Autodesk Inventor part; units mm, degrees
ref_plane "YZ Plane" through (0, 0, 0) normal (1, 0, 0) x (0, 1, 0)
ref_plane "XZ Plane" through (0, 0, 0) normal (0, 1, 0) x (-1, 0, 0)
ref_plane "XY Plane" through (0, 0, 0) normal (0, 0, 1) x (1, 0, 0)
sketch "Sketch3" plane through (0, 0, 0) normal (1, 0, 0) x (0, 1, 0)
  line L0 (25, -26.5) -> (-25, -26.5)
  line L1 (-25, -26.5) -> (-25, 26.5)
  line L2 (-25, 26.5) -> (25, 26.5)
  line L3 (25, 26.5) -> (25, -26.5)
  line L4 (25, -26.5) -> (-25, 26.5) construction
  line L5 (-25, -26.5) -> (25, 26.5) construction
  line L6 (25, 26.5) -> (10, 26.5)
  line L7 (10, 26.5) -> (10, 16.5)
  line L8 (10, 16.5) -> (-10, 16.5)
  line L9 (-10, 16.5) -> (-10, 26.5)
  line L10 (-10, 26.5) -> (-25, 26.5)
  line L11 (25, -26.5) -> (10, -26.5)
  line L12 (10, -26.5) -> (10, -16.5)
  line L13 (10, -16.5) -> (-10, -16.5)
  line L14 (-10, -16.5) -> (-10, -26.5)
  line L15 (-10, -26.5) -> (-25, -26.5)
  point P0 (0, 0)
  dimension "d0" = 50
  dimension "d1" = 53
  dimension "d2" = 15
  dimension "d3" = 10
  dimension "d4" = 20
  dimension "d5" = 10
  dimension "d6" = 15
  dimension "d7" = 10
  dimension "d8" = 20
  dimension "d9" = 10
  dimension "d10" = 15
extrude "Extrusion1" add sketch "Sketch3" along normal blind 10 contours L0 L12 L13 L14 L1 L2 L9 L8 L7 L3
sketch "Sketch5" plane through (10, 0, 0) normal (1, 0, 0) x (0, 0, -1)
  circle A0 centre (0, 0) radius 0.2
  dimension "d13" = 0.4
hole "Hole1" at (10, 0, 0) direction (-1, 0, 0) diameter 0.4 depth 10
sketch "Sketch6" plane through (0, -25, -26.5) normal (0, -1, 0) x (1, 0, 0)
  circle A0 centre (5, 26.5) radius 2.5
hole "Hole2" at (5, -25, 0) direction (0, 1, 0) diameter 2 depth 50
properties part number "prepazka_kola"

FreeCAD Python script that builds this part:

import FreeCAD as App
import Part
import Sketcher

V = App.Vector

doc = App.newDocument("Part")
body = doc.addObject("PartDesign::Body", "Body")

# Sketch on YZ plane
sketch1 = body.newObject("Sketcher::SketchObject", "Sketch")
sketch1.AttachmentSupport = (doc.getObject("YZ_Plane"), [""])
sketch1.MapMode = "FlatFace"
sketch1.addGeometry(Part.LineSegment(V(10, -26.5, 0), V(25, -26.5, 0)), False)
sketch1.addGeometry(Part.LineSegment(V(25, -26.5, 0), V(25, 26.5, 0)), False)
sketch1.addGeometry(Part.LineSegment(V(25, 26.5, 0), V(10, 26.5, 0)), False)
sketch1.addGeometry(Part.LineSegment(V(10, 26.5, 0), V(10, 16.5, 0)), False)
sketch1.addGeometry(Part.LineSegment(V(10, 16.5, 0), V(-10, 16.5, 0)), False)
sketch1.addGeometry(Part.LineSegment(V(-10, 16.5, 0), V(-10, 26.5, 0)), False)
sketch1.addGeometry(Part.LineSegment(V(-10, 26.5, 0), V(-25, 26.5, 0)), False)
sketch1.addGeometry(Part.LineSegment(V(-25, 26.5, 0), V(-25, -26.5, 0)), False)
sketch1.addGeometry(Part.LineSegment(V(-25, -26.5, 0), V(-10, -26.5, 0)), False)
sketch1.addGeometry(Part.LineSegment(V(-10, -26.5, 0), V(-10, -16.5, 0)), False)
sketch1.addGeometry(Part.LineSegment(V(-10, -16.5, 0), V(10, -16.5, 0)), False)
sketch1.addGeometry(Part.LineSegment(V(10, -16.5, 0), V(10, -26.5, 0)), False)
sketch1.addConstraint(Sketcher.Constraint("Coincident", 0, 2, 1, 1))
sketch1.addConstraint(Sketcher.Constraint("Coincident", 1, 2, 2, 1))
sketch1.addConstraint(Sketcher.Constraint("Coincident", 2, 2, 3, 1))
sketch1.addConstraint(Sketcher.Constraint("Coincident", 3, 2, 4, 1))
sketch1.addConstraint(Sketcher.Constraint("Coincident", 4, 2, 5, 1))
sketch1.addConstraint(Sketcher.Constraint("Coincident", 5, 2, 6, 1))
sketch1.addConstraint(Sketcher.Constraint("Coincident", 6, 2, 7, 1))
sketch1.addConstraint(Sketcher.Constraint("Coincident", 7, 2, 8, 1))
sketch1.addConstraint(Sketcher.Constraint("Coincident", 8, 2, 9, 1))
sketch1.addConstraint(Sketcher.Constraint("Coincident", 9, 2, 10, 1))
sketch1.addConstraint(Sketcher.Constraint("Coincident", 10, 2, 11, 1))
sketch1.addConstraint(Sketcher.Constraint("Coincident", 11, 2, 0, 1))
sketch1.addConstraint(Sketcher.Constraint("Horizontal", 0))
sketch1.addConstraint(Sketcher.Constraint("Vertical", 1))
sketch1.addConstraint(Sketcher.Constraint("Horizontal", 2))
sketch1.addConstraint(Sketcher.Constraint("Vertical", 3))
sketch1.addConstraint(Sketcher.Constraint("Horizontal", 4))
sketch1.addConstraint(Sketcher.Constraint("Vertical", 5))
sketch1.addConstraint(Sketcher.Constraint("Horizontal", 6))
sketch1.addConstraint(Sketcher.Constraint("Vertical", 7))
sketch1.addConstraint(Sketcher.Constraint("Horizontal", 8))
sketch1.addConstraint(Sketcher.Constraint("Vertical", 9))
sketch1.addConstraint(Sketcher.Constraint("Horizontal", 10))
sketch1.addConstraint(Sketcher.Constraint("Vertical", 11))
sketch1.addConstraint(Sketcher.Constraint("Symmetric", 0, 2, 6, 2, -1, 1))
sketch1.addConstraint(Sketcher.Constraint("Symmetric", 2, 2, 8, 2, -1, 1))
sketch1.addConstraint(Sketcher.Constraint("Symmetric", 4, 2, 10, 2, -1, 1))
sketch1.addConstraint(Sketcher.Constraint("Symmetric", 2, 2, 5, 2, -2))
sketch1.addConstraint(Sketcher.Constraint("DistanceX", 0, 1, 0, 2, 15.0))
sketch1.addConstraint(Sketcher.Constraint("DistanceX", 4, 2, 4, 1, 20.0))
sketch1.addConstraint(Sketcher.Constraint("DistanceY", 1, 1, 1, 2, 53.0))
sketch1.addConstraint(Sketcher.Constraint("DistanceY", 3, 2, 3, 1, 10.0))
pad1 = body.newObject("PartDesign::Pad", "Pad")
pad1.Profile = sketch1
pad1.Length = 10

# Sketch on YZ plane
sketch2 = body.newObject("Sketcher::SketchObject", "Sketch001")
sketch2.AttachmentSupport = (doc.getObject("YZ_Plane"), [""])
sketch2.MapMode = "FlatFace"
sketch2.AttachmentOffset = App.Placement(V(0, 0, 10), App.Rotation())
sketch2.addGeometry(Part.Circle(V(0, 0, 0), V(0, 0, 1), 0.2), False)
sketch2.addConstraint(Sketcher.Constraint("Coincident", 0, 3, -1, 1))
sketch2.addConstraint(Sketcher.Constraint("Diameter", 0, 0.4))
doc.recompute()
hole = body.newObject("PartDesign::Hole", "Hole")
hole.Profile = sketch2
hole.ThreadType = "None"
hole.Diameter = 0.4
hole.DepthType = "Dimension"
hole.Depth = 10
hole.DrillPoint = "Flat"

# Sketch on XZ plane
sketch3 = body.newObject("Sketcher::SketchObject", "Sketch002")
sketch3.AttachmentSupport = (doc.getObject("XZ_Plane"), [""])
sketch3.MapMode = "FlatFace"
sketch3.AttachmentOffset = App.Placement(V(0, 0, 25), App.Rotation())
sketch3.addGeometry(Part.Circle(V(5, 0, 0), V(0, 0, 1), 1), False)
sketch3.addConstraint(Sketcher.Constraint("PointOnObject", 0, 3, -1))
sketch3.addConstraint(Sketcher.Constraint("Diameter", 0, 2.0))
sketch3.addConstraint(Sketcher.Constraint("DistanceX", -1, 1, 0, 3, 5.0))
doc.recompute()
hole2 = body.newObject("PartDesign::Hole", "Hole001")
hole2.Profile = sketch3
hole2.ThreadType = "None"
hole2.Diameter = 2
hole2.DepthType = "Dimension"
hole2.Depth = 50
hole2.DrillPoint = "Flat"

doc.recompute()
